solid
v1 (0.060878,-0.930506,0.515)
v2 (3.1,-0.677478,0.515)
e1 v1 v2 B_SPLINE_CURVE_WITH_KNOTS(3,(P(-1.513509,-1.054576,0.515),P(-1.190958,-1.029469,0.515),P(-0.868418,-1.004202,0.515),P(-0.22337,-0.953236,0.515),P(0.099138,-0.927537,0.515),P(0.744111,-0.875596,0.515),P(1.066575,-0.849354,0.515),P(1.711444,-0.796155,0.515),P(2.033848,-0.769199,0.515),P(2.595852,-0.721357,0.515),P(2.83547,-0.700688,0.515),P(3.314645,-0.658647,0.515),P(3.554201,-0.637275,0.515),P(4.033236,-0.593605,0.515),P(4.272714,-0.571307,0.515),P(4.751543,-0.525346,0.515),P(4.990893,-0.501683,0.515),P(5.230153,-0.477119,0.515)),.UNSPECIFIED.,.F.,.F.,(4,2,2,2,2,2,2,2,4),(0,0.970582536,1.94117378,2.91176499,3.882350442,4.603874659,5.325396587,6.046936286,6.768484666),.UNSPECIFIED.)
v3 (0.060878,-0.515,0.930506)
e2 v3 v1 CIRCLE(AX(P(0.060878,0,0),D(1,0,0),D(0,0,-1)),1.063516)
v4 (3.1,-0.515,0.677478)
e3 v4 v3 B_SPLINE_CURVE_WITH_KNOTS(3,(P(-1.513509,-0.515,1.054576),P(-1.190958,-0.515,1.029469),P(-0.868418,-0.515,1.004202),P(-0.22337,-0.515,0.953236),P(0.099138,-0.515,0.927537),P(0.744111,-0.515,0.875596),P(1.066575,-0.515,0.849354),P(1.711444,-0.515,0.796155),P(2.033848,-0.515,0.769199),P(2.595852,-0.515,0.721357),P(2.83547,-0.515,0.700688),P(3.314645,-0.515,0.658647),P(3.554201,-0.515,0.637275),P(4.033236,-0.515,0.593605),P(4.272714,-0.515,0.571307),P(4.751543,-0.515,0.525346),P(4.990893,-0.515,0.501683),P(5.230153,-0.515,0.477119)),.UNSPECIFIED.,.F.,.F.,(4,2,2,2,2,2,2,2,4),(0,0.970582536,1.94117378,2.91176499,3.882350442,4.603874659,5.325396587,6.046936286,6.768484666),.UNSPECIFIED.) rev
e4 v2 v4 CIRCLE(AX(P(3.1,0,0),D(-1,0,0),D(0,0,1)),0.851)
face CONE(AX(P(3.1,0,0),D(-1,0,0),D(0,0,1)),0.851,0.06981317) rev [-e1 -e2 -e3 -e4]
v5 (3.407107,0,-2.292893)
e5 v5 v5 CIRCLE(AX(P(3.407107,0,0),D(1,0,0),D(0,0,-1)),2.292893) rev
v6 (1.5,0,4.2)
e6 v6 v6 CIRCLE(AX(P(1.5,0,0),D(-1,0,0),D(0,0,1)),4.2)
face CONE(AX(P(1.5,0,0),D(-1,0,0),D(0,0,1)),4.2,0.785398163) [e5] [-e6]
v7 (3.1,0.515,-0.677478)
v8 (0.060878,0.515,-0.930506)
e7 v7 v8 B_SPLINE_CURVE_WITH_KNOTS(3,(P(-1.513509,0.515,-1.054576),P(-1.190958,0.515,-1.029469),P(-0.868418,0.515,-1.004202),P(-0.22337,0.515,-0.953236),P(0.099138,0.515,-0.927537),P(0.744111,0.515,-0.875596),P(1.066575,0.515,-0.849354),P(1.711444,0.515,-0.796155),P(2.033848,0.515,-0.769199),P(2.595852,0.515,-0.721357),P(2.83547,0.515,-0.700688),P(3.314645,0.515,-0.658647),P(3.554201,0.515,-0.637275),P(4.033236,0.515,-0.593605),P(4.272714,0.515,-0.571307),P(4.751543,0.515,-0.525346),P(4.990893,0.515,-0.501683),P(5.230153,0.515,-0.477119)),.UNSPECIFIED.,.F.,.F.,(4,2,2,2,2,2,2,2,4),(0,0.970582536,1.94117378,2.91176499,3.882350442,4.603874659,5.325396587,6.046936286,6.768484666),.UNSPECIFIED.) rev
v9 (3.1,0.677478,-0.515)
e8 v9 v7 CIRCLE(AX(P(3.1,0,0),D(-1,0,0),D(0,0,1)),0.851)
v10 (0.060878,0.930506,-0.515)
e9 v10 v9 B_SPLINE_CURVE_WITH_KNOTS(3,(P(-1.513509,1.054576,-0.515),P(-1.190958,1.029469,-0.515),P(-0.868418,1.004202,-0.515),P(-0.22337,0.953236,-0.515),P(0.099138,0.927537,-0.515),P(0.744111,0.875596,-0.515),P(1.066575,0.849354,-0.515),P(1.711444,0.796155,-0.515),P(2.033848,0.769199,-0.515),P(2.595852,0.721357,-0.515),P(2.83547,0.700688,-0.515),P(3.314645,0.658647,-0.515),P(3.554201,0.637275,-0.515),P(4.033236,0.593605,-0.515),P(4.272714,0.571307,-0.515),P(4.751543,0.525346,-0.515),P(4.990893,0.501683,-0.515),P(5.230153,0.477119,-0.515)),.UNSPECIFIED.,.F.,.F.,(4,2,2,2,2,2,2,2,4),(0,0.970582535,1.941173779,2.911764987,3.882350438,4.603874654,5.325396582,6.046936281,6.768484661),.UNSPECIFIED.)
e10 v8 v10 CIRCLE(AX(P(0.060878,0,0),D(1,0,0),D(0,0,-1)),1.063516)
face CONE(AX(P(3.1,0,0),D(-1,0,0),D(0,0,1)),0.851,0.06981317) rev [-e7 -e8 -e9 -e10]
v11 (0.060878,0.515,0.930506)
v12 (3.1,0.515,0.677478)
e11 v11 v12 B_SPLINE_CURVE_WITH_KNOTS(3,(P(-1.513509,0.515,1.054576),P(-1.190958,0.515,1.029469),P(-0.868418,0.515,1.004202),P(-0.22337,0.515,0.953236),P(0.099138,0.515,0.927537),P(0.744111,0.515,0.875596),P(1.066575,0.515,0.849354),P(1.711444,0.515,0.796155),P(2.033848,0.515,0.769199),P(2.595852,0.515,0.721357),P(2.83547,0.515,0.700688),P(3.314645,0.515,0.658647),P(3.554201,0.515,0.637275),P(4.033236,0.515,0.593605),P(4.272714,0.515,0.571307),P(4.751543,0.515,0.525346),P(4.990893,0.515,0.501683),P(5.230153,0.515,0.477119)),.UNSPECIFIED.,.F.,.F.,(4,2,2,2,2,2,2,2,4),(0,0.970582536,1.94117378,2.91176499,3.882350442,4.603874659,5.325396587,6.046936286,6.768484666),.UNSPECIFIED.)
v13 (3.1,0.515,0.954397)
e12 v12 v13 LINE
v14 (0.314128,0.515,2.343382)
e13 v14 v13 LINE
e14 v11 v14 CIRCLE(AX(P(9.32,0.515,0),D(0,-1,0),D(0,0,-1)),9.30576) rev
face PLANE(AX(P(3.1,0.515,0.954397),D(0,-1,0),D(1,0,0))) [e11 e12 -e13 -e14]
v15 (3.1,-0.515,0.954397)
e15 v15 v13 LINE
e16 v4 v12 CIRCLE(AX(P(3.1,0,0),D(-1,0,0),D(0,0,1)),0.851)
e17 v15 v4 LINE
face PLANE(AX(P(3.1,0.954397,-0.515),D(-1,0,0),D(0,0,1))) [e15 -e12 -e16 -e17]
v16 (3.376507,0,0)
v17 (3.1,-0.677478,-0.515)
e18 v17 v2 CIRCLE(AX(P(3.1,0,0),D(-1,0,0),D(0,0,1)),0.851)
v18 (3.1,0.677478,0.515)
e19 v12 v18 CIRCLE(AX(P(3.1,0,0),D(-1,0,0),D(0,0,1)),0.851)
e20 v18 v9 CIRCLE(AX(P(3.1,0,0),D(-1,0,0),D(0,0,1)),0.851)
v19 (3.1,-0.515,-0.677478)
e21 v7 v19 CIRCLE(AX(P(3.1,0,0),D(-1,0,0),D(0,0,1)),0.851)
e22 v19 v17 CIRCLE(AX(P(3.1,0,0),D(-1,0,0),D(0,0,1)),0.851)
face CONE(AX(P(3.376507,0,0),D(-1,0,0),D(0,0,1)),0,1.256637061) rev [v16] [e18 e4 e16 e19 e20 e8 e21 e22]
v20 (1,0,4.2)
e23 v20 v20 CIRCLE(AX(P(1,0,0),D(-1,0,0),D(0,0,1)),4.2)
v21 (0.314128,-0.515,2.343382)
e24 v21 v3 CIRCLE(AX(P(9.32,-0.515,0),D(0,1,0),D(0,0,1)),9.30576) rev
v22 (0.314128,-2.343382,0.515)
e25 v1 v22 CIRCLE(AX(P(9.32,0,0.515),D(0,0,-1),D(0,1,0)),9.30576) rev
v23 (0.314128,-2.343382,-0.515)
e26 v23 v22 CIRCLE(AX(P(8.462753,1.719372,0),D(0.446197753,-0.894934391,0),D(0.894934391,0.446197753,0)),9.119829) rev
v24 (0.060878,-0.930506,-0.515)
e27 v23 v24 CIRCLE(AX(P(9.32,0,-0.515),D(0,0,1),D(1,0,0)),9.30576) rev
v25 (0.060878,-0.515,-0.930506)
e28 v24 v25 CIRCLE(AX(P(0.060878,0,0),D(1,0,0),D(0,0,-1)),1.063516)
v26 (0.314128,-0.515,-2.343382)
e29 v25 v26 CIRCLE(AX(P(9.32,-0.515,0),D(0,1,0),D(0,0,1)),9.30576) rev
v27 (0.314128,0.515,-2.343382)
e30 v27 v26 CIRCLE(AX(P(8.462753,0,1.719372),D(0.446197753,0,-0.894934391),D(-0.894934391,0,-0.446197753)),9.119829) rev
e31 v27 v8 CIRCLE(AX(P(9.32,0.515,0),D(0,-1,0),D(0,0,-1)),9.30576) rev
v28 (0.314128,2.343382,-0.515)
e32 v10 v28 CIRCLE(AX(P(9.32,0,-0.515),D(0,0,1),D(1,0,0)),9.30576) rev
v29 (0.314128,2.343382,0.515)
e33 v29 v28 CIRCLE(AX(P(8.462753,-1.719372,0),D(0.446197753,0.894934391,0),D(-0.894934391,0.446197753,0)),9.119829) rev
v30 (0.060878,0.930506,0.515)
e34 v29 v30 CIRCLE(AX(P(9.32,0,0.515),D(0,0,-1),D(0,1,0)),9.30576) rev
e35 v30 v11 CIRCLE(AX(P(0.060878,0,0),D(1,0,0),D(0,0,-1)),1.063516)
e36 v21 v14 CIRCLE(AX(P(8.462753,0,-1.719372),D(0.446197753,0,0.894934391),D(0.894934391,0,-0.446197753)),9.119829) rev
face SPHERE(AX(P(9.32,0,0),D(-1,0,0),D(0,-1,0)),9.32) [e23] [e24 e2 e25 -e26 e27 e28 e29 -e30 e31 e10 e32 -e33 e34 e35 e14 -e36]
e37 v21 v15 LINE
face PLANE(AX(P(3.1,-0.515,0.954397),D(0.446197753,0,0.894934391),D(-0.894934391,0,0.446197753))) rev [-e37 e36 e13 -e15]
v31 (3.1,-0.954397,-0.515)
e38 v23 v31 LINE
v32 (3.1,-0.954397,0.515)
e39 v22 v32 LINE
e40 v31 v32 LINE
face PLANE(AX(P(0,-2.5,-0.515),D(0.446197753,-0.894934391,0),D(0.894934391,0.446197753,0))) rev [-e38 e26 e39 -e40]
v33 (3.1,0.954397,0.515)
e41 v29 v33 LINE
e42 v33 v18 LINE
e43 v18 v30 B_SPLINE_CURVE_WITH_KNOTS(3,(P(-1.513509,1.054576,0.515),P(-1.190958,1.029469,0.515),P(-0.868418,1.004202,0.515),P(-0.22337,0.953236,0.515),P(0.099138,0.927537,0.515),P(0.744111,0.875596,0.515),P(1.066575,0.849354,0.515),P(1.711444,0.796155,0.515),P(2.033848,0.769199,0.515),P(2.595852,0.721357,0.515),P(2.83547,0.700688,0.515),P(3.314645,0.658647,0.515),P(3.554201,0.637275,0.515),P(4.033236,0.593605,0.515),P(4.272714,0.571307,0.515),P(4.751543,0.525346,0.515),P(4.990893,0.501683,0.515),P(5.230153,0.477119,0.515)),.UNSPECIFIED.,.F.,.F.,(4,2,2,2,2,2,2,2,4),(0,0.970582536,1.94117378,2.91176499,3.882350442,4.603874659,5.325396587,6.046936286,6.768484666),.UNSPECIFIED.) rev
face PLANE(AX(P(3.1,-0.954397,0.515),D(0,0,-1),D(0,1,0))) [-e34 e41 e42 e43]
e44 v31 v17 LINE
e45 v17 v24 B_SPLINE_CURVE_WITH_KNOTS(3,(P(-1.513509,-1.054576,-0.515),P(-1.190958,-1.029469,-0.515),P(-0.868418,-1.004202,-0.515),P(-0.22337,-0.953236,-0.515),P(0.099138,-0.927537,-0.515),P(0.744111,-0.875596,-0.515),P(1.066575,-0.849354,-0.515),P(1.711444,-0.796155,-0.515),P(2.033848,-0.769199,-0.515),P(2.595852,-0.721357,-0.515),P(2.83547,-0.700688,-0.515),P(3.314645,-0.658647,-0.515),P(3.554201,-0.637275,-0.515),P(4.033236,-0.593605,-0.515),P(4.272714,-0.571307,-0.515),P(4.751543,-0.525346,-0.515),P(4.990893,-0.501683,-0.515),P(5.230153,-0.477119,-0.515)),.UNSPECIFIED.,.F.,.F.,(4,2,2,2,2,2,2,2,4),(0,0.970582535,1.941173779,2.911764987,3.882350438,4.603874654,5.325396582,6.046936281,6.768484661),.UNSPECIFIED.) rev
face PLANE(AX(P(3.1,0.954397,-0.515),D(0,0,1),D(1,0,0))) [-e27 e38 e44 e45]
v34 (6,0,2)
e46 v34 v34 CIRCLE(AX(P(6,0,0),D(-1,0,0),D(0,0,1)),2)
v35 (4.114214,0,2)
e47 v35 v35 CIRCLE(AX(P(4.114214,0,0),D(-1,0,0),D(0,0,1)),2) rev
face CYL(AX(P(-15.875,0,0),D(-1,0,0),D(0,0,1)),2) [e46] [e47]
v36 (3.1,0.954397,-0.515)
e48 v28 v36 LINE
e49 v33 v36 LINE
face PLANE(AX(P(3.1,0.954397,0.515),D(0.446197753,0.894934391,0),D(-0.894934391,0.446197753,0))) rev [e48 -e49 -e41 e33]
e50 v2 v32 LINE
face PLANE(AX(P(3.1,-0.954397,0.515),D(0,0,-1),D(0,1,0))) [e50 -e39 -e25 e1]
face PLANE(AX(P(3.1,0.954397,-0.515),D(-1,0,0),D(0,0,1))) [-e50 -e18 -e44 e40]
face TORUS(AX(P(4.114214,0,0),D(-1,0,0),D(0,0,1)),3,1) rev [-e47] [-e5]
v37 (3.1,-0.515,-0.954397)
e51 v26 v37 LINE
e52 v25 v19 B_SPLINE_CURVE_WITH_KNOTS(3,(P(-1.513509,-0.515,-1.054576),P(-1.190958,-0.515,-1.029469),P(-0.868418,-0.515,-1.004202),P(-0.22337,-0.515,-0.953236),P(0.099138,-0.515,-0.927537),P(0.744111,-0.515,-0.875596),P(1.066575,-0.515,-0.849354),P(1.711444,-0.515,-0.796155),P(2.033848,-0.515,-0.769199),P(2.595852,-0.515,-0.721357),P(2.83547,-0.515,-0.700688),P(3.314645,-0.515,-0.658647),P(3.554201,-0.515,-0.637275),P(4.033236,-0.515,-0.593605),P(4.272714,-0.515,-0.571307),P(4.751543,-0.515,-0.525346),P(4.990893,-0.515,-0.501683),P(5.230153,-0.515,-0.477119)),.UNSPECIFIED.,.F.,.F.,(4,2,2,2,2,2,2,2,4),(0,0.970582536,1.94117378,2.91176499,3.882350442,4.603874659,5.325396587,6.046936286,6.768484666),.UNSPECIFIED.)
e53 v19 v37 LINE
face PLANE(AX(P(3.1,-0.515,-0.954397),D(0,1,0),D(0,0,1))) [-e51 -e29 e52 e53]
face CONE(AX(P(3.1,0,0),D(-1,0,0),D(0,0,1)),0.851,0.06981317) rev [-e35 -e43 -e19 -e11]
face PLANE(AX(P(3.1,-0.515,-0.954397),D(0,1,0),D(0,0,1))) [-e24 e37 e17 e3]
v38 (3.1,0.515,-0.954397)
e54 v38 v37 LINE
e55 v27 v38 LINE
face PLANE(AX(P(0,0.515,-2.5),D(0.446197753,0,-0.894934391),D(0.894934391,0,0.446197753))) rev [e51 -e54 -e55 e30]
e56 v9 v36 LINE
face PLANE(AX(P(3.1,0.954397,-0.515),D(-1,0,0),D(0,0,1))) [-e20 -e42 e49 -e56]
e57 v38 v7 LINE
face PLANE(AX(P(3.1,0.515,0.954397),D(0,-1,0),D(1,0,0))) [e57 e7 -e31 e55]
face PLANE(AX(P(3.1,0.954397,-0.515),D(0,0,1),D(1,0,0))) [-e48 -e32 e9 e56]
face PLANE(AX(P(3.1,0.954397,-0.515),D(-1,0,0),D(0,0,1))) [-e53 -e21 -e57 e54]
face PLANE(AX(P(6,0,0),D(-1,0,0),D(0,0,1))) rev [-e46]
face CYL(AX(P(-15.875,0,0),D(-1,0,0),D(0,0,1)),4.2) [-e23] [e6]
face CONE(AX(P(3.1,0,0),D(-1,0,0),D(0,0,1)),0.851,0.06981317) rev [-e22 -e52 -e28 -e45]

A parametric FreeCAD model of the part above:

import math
import FreeCAD as App
import Part
import Sketcher

V = App.Vector
Q = App.Units.Quantity


def edges_at(feature, points):
    """Names of the edges that pass closest to the given points."""
    edges = feature.Shape.Edges
    near = lambda p: min(range(len(edges)), key=lambda i: edges[i].distToShape(Part.Vertex(*p))[0])
    return sorted({f"Edge{near(p) + 1}" for p in points})


def add_polygon(sketch, points):
    """Adds a closed chain of lines whose ends are joined by coincident constraints."""
    first, n = sketch.GeometryCount, len(points)
    for a, b in zip(points, points[1:] + points[:1]):
        sketch.addGeometry(Part.LineSegment(App.Vector(*a, 0), App.Vector(*b, 0)), False)
    for i in range(n):
        sketch.addConstraint(Sketcher.Constraint("Coincident", first + i, 2, first + (i + 1) % n, 1))

doc = App.newDocument("Part")
body = doc.addObject("PartDesign::Body", "Body")

# Sketch on XY plane
sketch1 = doc.addObject("Sketcher::SketchObject", "Sketch")
body.addObject(sketch1)
sketch1.AttachmentSupport = (doc.XY_Plane, [""])
sketch1.MapMode = "FlatFace"
sketch1.addGeometry([
    Part.LineSegment(V(0, 0, 0), V(6, 0, 0)),  # 0
    Part.LineSegment(V(6, 0, 0), V(6, 2, 0)),  # 1
    Part.LineSegment(V(6, 2, 0), V(3.7, 2, 0)),  # 2
    Part.LineSegment(V(3.7, 2, 0), V(1.5, 4.2, 0)),  # 3
    Part.LineSegment(V(1.5, 4.2, 0), V(1, 4.2, 0)),  # 4
    Part.ArcOfCircle(Part.Circle(V(9.3, 0, 0), V(0, 0, 1), 9.3), math.radians(153), math.radians(180)),  # 5
], False)
sketch1.addConstraint([
    Sketcher.Constraint("Coincident", 0, 2, 1, 1),
    Sketcher.Constraint("Coincident", 1, 2, 2, 1),
    Sketcher.Constraint("Coincident", 2, 2, 3, 1),
    Sketcher.Constraint("Coincident", 3, 2, 4, 1),
    Sketcher.Constraint("Coincident", 4, 2, 5, 1),
    Sketcher.Constraint("Coincident", 5, 2, 0, 1),
    Sketcher.Constraint("Horizontal", 0),
    Sketcher.Constraint("Vertical", 1),
    Sketcher.Constraint("Horizontal", 2),
    Sketcher.Constraint("Horizontal", 4),
    Sketcher.Constraint("Coincident", 5, 2, -1, 1),
    Sketcher.Constraint("PointOnObject", 5, 3, -1),
    Sketcher.Constraint("DistanceX", 0, 1, 0, 2, 6.0),
    Sketcher.Constraint("DistanceY", 1, 1, 1, 2, 2.0),
    Sketcher.Constraint("Angle", 3, Q("135 deg")),
    Sketcher.Constraint("Radius", 5, 9.32),
    Sketcher.Constraint("DistanceX", 2, 2, 2, 1, 2.3),
    Sketcher.Constraint("DistanceX", 4, 2, 4, 1, 0.5),
])
revolution = doc.addObject("PartDesign::Revolution", "Revolution")
body.addObject(revolution)
revolution.Profile = sketch1
revolution.ReferenceAxis = (sketch1, ["H_Axis"])
revolution.Angle = 360
doc.recompute()

fillet = doc.addObject("PartDesign::Fillet", "Fillet")
body.addObject(fillet)
fillet.Base = (revolution, edges_at(revolution, [(3.7, 0, -2)]))
fillet.Radius = 1

# Sketch on YZ plane
sketch2 = doc.addObject("Sketcher::SketchObject", "Sketch001")
body.addObject(sketch2)
sketch2.AttachmentSupport = (doc.YZ_Plane, [""])
sketch2.MapMode = "FlatFace"
add_polygon(sketch2, [(-2.5, 0.5), (-2.5, -0.5), (2.5, -0.5), (2.5, 0.5)])  # lines 0-3
sketch2.addConstraint([
    Sketcher.Constraint("Vertical", 0),
    Sketcher.Constraint("Horizontal", 1),
    Sketcher.Constraint("Vertical", 2),
    Sketcher.Constraint("Horizontal", 3),
    Sketcher.Constraint("Symmetric", 0, 2, 2, 2, -1, 1),
    Sketcher.Constraint("DistanceX", 1, 1, 1, 2, 5.0),
    Sketcher.Constraint("DistanceY", 0, 2, 0, 1, 1.03),
])

# Sketch on YZ plane
sketch3 = doc.addObject("Sketcher::SketchObject", "Sketch002")
body.addObject(sketch3)
sketch3.AttachmentSupport = (doc.YZ_Plane, [""])
sketch3.MapMode = "FlatFace"
sketch3.AttachmentOffset = App.Placement(V(0, 0, 3.1), App.Rotation())
add_polygon(sketch3, [(-1, 0.5), (-1, -0.5), (1, -0.5), (1, 0.5)])  # lines 0-3
sketch3.addConstraint([
    Sketcher.Constraint("Vertical", 0),
    Sketcher.Constraint("Horizontal", 1),
    Sketcher.Constraint("Vertical", 2),
    Sketcher.Constraint("Horizontal", 3),
    Sketcher.Constraint("Symmetric", 0, 2, 2, 2, -1, 1),
    Sketcher.Constraint("DistanceY", 0, 2, 0, 1, 1.03),
    Sketcher.Constraint("DistanceX", 1, 1, 1, 2, 1.908795),
])

subtractiveloft = doc.addObject("PartDesign::SubtractiveLoft", "SubtractiveLoft")
body.addObject(subtractiveloft)
subtractiveloft.Profile = sketch2
subtractiveloft.Sections = [sketch3]
doc.recompute()

polarpattern = doc.addObject("PartDesign::PolarPattern", "PolarPattern")
body.addObject(polarpattern)
polarpattern.Originals = [subtractiveloft]
polarpattern.Axis = (doc.X_Axis, [""])
polarpattern.Angle = 90
polarpattern.Occurrences = 2
body.Tip = polarpattern

# Sketch on XY plane
sketch4 = doc.addObject("Sketcher::SketchObject", "Sketch003")
body.addObject(sketch4)
sketch4.AttachmentSupport = (doc.XY_Plane, [""])
sketch4.MapMode = "FlatFace"
add_polygon(sketch4, [(0, 1.1), (0, 0), (3.4, 0), (3.1, 0.9)])  # lines 0-3
sketch4.addConstraint([
    Sketcher.Constraint("Vertical", 0),
    Sketcher.Constraint("Horizontal", 1),
    Sketcher.Constraint("Coincident", 0, 2, -1, 1),
    Sketcher.Constraint("Angle", 2, Q("108 deg")),
    Sketcher.Constraint("Angle", 3, Q("176 deg")),
    Sketcher.Constraint("DistanceX", -1, 1, 2, 2, 3.1),
    Sketcher.Constraint("DistanceY", -1, 1, 2, 2, 0.851),
])
groove = doc.addObject("PartDesign::Groove", "Groove")
body.addObject(groove)
groove.Profile = sketch4
groove.ReferenceAxis = (sketch4, ["H_Axis"])
groove.Angle = 360

doc.recompute()
